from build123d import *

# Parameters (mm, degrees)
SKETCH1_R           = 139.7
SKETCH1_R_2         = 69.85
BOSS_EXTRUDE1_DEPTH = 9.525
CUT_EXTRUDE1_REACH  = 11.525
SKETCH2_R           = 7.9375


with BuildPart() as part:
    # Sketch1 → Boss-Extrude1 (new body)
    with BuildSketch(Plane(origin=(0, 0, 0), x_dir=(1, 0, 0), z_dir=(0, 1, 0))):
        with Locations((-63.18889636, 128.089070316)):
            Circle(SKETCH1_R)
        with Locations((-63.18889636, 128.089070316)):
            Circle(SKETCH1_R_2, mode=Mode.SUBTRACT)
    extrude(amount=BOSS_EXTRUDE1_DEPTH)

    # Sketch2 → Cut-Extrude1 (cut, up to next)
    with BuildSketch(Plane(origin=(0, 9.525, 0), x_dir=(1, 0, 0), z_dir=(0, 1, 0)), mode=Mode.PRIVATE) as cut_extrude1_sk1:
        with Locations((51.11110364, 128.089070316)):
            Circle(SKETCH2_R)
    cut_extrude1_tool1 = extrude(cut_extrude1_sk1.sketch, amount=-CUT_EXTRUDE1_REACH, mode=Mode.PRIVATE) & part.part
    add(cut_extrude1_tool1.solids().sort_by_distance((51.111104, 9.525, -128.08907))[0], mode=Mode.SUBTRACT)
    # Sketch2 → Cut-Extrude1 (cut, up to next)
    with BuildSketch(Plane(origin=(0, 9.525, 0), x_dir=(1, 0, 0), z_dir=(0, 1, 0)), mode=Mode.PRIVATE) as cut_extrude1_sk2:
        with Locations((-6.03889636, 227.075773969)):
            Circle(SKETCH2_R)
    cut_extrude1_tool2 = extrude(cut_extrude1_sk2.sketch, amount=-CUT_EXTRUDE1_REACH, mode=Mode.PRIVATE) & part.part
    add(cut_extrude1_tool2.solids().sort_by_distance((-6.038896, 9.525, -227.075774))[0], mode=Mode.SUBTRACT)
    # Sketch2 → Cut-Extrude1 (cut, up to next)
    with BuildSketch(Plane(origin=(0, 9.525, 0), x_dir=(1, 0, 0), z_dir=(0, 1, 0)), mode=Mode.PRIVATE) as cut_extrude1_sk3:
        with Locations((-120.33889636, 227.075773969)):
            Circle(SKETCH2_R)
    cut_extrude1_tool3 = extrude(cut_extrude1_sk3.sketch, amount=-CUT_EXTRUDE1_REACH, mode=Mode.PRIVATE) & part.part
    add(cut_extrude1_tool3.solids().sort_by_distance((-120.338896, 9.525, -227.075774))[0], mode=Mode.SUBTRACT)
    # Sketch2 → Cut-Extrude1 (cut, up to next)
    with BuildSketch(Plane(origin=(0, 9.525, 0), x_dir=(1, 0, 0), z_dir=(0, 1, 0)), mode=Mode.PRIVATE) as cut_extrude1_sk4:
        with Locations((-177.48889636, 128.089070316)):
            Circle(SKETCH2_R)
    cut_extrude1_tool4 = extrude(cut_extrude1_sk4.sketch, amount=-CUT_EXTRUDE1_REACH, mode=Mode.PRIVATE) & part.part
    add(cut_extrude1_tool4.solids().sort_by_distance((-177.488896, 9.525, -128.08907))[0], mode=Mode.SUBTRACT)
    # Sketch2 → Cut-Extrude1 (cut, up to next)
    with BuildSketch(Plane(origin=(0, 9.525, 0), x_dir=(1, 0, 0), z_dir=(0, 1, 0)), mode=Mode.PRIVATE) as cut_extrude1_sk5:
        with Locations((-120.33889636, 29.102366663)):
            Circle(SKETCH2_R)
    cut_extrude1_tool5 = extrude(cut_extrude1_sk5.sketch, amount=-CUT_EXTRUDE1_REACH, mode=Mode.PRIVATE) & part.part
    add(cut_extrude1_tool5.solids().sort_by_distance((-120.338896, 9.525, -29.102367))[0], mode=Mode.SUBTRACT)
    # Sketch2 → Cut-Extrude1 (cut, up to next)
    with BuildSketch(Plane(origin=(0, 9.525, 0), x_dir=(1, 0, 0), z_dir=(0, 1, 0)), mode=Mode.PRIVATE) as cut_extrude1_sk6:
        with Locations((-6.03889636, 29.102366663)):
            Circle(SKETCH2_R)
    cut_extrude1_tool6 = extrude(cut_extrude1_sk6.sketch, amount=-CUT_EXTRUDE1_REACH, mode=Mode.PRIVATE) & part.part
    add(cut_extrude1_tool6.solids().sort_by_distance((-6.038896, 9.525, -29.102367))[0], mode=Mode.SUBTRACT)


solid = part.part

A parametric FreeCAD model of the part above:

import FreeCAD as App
import Part
import Sketcher
from FreeCAD import Vector
Q = App.Units.Quantity

doc = App.newDocument("Part")
params = doc.addObject("Spreadsheet::Sheet", "Params")
for row, (alias, value) in enumerate([
    ("sketch1_diameter", "11 in"),
    ("sketch1_diameter2", "5.5 in"),
    ("pad1_length", "0.375 in"),
    ("sketch2_diameter", "0.625 in"),
    ("sketch3_diameter", "0.625 in"),
    ("sketch4_diameter", "0.625 in"),
    ("sketch5_diameter", "0.625 in"),
    ("sketch6_diameter", "0.625 in"),
    ("sketch7_diameter", "0.625 in"),
], start=1):
    params.set(f"A{row}", alias)
    params.set(f"B{row}", "=" + value)
    params.setAlias(f"B{row}", alias)

body = doc.addObject("PartDesign::Body", "Body")

# Sketch on XZ plane
sketch1 = body.newObject("Sketcher::SketchObject", "Sketch")
sketch1.AttachmentSupport = (doc.getObject("XZ_Plane"), [""])
sketch1.MapMode = "FlatFace"
sketch1.addGeometry([
    Part.Circle(Vector(-63, -128, 0), Vector(0, 0, 1), 140),
    Part.Circle(Vector(-63, -128, 0), Vector(0, 0, 1), 70),
], False)
sketch1.addConstraint([
    Sketcher.Constraint("Coincident", 1, 3, 0, 3),
    Sketcher.Constraint("Diameter", 0, Q("11 in")),
    Sketcher.Constraint("Diameter", 1, Q("5.5 in")),
    Sketcher.Constraint("DistanceY", 0, 3, -1, 1, Q("128.08907 mm")),
    Sketcher.Constraint("DistanceX", 0, 3, -1, 1, Q("63.188896 mm")),
])
sketch1.setExpression("Constraints[1]", "Params.sketch1_diameter")
sketch1.setExpression("Constraints[2]", "Params.sketch1_diameter2")
pad1 = body.newObject("PartDesign::Pad", "Pad")
pad1.Profile = sketch1
pad1.setExpression("Length", "Params.pad1_length")
pad1.Reversed = True

# Sketch on XZ plane
sketch2 = body.newObject("Sketcher::SketchObject", "Sketch001")
sketch2.AttachmentSupport = (doc.getObject("XZ_Plane"), [""])
sketch2.MapMode = "FlatFace"
sketch2.AttachmentOffset = App.Placement(Vector(0, 0, -0.375 * 25.4), App.Rotation())
sketch2.addGeometry(Part.Circle(Vector(51, -128, 0), Vector(0, 0, 1), 8), False)
sketch2.addConstraint([
    Sketcher.Constraint("Diameter", 0, Q("0.625 in")),
    Sketcher.Constraint("DistanceY", 0, 3, -1, 1, Q("128.08907 mm")),
    Sketcher.Constraint("DistanceX", -1, 1, 0, 3, Q("51.111104 mm")),
])
sketch2.setExpression("Constraints[0]", "Params.sketch2_diameter")
pocket1 = body.newObject("PartDesign::Pocket", "Pocket")
pocket1.Profile = sketch2
pocket1.Type = "UpToFirst"
pocket1.Reversed = True

# Sketch on XZ plane
sketch3 = body.newObject("Sketcher::SketchObject", "Sketch002")
sketch3.AttachmentSupport = (doc.getObject("XZ_Plane"), [""])
sketch3.MapMode = "FlatFace"
sketch3.AttachmentOffset = App.Placement(Vector(0, 0, -0.375 * 25.4), App.Rotation())
sketch3.addGeometry(Part.Circle(Vector(-6, -227, 0), Vector(0, 0, 1), 8), False)
sketch3.addConstraint([
    Sketcher.Constraint("Diameter", 0, Q("0.625 in")),
    Sketcher.Constraint("DistanceX", 0, 3, -1, 1, Q("6.038896 mm")),
    Sketcher.Constraint("DistanceY", 0, 3, -1, 1, Q("227.075774 mm")),
])
sketch3.setExpression("Constraints[0]", "Params.sketch3_diameter")
pocket2 = body.newObject("PartDesign::Pocket", "Pocket001")
pocket2.Profile = sketch3
pocket2.Type = "UpToFirst"
pocket2.Reversed = True

# Sketch on XZ plane
sketch4 = body.newObject("Sketcher::SketchObject", "Sketch003")
sketch4.AttachmentSupport = (doc.getObject("XZ_Plane"), [""])
sketch4.MapMode = "FlatFace"
sketch4.AttachmentOffset = App.Placement(Vector(0, 0, -0.375 * 25.4), App.Rotation())
sketch4.addGeometry(Part.Circle(Vector(-120, -227, 0), Vector(0, 0, 1), 8), False)
sketch4.addConstraint([
    Sketcher.Constraint("Diameter", 0, Q("0.625 in")),
    Sketcher.Constraint("DistanceX", 0, 3, -1, 1, Q("120.338896 mm")),
    Sketcher.Constraint("DistanceY", 0, 3, -1, 1, Q("227.075774 mm")),
])
sketch4.setExpression("Constraints[0]", "Params.sketch4_diameter")
pocket3 = body.newObject("PartDesign::Pocket", "Pocket002")
pocket3.Profile = sketch4
pocket3.Type = "UpToFirst"
pocket3.Reversed = True

# Sketch on XZ plane
sketch5 = body.newObject("Sketcher::SketchObject", "Sketch004")
sketch5.AttachmentSupport = (doc.getObject("XZ_Plane"), [""])
sketch5.MapMode = "FlatFace"
sketch5.AttachmentOffset = App.Placement(Vector(0, 0, -0.375 * 25.4), App.Rotation())
sketch5.addGeometry(Part.Circle(Vector(-177, -128, 0), Vector(0, 0, 1), 8), False)
sketch5.addConstraint([
    Sketcher.Constraint("Diameter", 0, Q("0.625 in")),
    Sketcher.Constraint("DistanceY", 0, 3, -1, 1, Q("128.08907 mm")),
    Sketcher.Constraint("DistanceX", 0, 3, -1, 1, Q("177.488896 mm")),
])
sketch5.setExpression("Constraints[0]", "Params.sketch5_diameter")
pocket4 = body.newObject("PartDesign::Pocket", "Pocket003")
pocket4.Profile = sketch5
pocket4.Type = "UpToFirst"
pocket4.Reversed = True

# Sketch on XZ plane
sketch6 = body.newObject("Sketcher::SketchObject", "Sketch005")
sketch6.AttachmentSupport = (doc.getObject("XZ_Plane"), [""])
sketch6.MapMode = "FlatFace"
sketch6.AttachmentOffset = App.Placement(Vector(0, 0, -0.375 * 25.4), App.Rotation())
sketch6.addGeometry(Part.Circle(Vector(-120, -29, 0), Vector(0, 0, 1), 8), False)
sketch6.addConstraint([
    Sketcher.Constraint("Diameter", 0, Q("0.625 in")),
    Sketcher.Constraint("DistanceX", 0, 3, -1, 1, Q("120.338896 mm")),
    Sketcher.Constraint("DistanceY", 0, 3, -1, 1, Q("29.102367 mm")),
])
sketch6.setExpression("Constraints[0]", "Params.sketch6_diameter")
pocket5 = body.newObject("PartDesign::Pocket", "Pocket004")
pocket5.Profile = sketch6
pocket5.Type = "UpToFirst"
pocket5.Reversed = True

# Sketch on XZ plane
sketch7 = body.newObject("Sketcher::SketchObject", "Sketch006")
sketch7.AttachmentSupport = (doc.getObject("XZ_Plane"), [""])
sketch7.MapMode = "FlatFace"
sketch7.AttachmentOffset = App.Placement(Vector(0, 0, -0.375 * 25.4), App.Rotation())
sketch7.addGeometry(Part.Circle(Vector(-6, -29, 0), Vector(0, 0, 1), 8), False)
sketch7.addConstraint([
    Sketcher.Constraint("Diameter", 0, Q("0.625 in")),
    Sketcher.Constraint("DistanceX", 0, 3, -1, 1, Q("6.038896 mm")),
    Sketcher.Constraint("DistanceY", 0, 3, -1, 1, Q("29.102367 mm")),
])
sketch7.setExpression("Constraints[0]", "Params.sketch7_diameter")
pocket6 = body.newObject("PartDesign::Pocket", "Pocket005")
pocket6.Profile = sketch7
pocket6.Type = "UpToFirst"
pocket6.Reversed = True

doc.recompute()
